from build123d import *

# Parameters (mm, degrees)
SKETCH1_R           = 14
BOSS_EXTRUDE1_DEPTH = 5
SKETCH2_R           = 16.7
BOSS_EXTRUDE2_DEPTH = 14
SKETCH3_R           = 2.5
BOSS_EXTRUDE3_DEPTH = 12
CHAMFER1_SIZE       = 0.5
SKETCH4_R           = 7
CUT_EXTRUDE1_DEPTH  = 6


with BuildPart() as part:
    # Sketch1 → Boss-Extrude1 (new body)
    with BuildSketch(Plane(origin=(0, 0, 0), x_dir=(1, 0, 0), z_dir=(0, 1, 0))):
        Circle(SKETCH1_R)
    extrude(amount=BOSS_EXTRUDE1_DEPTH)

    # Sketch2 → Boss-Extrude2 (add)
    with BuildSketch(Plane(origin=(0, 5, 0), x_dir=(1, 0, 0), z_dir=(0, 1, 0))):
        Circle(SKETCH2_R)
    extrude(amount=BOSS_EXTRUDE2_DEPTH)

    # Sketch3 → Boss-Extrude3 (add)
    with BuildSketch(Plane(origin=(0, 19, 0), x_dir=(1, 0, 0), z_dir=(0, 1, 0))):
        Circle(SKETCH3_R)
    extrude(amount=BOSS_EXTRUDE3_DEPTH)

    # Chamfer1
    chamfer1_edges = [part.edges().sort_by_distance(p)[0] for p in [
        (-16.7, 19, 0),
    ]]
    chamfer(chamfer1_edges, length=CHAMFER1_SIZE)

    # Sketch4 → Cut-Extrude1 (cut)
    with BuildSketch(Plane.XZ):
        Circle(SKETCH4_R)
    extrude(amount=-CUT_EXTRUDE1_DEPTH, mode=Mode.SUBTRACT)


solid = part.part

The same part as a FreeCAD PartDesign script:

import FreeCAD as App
import Part
import Sketcher
from FreeCAD import Vector


def edges_at(feature, points):
    """Names of the edges that pass closest to the given points."""
    edges = feature.Shape.Edges
    near = lambda p: min(range(len(edges)), key=lambda i: edges[i].distToShape(Part.Vertex(*p))[0])
    return sorted({f"Edge{near(p) + 1}" for p in points})

doc = App.newDocument("Part")
body = doc.addObject("PartDesign::Body", "Body")

sketch1 = body.newObject("Sketcher::SketchObject", "Sketch")
sketch1.AttachmentSupport = (doc.getObject("XZ_Plane"), [""])
sketch1.MapMode = "FlatFace"
sketch1.addGeometry(Part.Circle(Vector(0, 0, 0), Vector(0, 0, 1), 14), False)
sketch1.addConstraint([
    Sketcher.Constraint("Coincident", 0, 3, -1, 1),
    Sketcher.Constraint("Diameter", 0, 28.0),
])
pad1 = body.newObject("PartDesign::Pad", "Pad")
pad1.Profile = sketch1
pad1.Length = 5
pad1.Reversed = True

sketch2 = body.newObject("Sketcher::SketchObject", "Sketch001")
sketch2.AttachmentSupport = (doc.getObject("XZ_Plane"), [""])
sketch2.MapMode = "FlatFace"
sketch2.AttachmentOffset = App.Placement(Vector(0, 0, -5), App.Rotation())
sketch2.addGeometry(Part.Circle(Vector(0, 0, 0), Vector(0, 0, 1), 17), False)
sketch2.addConstraint([
    Sketcher.Constraint("Coincident", 0, 3, -1, 1),
    Sketcher.Constraint("Diameter", 0, 33.4),
])
pad2 = body.newObject("PartDesign::Pad", "Pad001")
pad2.Profile = sketch2
pad2.Length = 14
pad2.Reversed = True

sketch3 = body.newObject("Sketcher::SketchObject", "Sketch002")
sketch3.AttachmentSupport = (doc.getObject("XZ_Plane"), [""])
sketch3.MapMode = "FlatFace"
sketch3.AttachmentOffset = App.Placement(Vector(0, 0, -19), App.Rotation())
sketch3.addGeometry(Part.Circle(Vector(0, 0, 0), Vector(0, 0, 1), 2.5), False)
sketch3.addConstraint([
    Sketcher.Constraint("Coincident", 0, 3, -1, 1),
    Sketcher.Constraint("Diameter", 0, 5.0),
])
pad3 = body.newObject("PartDesign::Pad", "Pad002")
pad3.Profile = sketch3
pad3.Length = 12
pad3.Reversed = True
doc.recompute()

chamfer = body.newObject("PartDesign::Chamfer", "Chamfer")
chamfer.Base = (pad3, edges_at(pad3, [(-16.7, 19, 0)]))
chamfer.Size = 0.5

sketch4 = body.newObject("Sketcher::SketchObject", "Sketch003")
sketch4.AttachmentSupport = (doc.getObject("XZ_Plane"), [""])
sketch4.MapMode = "FlatFace"
sketch4.addGeometry(Part.Circle(Vector(0, 0, 0), Vector(0, 0, 1), 7), False)
sketch4.addConstraint([
    Sketcher.Constraint("Coincident", 0, 3, -1, 1),
    Sketcher.Constraint("Diameter", 0, 14.0),
])
pocket1 = body.newObject("PartDesign::Pocket", "Pocket")
pocket1.Profile = sketch4
pocket1.Length = 6

doc.recompute()
